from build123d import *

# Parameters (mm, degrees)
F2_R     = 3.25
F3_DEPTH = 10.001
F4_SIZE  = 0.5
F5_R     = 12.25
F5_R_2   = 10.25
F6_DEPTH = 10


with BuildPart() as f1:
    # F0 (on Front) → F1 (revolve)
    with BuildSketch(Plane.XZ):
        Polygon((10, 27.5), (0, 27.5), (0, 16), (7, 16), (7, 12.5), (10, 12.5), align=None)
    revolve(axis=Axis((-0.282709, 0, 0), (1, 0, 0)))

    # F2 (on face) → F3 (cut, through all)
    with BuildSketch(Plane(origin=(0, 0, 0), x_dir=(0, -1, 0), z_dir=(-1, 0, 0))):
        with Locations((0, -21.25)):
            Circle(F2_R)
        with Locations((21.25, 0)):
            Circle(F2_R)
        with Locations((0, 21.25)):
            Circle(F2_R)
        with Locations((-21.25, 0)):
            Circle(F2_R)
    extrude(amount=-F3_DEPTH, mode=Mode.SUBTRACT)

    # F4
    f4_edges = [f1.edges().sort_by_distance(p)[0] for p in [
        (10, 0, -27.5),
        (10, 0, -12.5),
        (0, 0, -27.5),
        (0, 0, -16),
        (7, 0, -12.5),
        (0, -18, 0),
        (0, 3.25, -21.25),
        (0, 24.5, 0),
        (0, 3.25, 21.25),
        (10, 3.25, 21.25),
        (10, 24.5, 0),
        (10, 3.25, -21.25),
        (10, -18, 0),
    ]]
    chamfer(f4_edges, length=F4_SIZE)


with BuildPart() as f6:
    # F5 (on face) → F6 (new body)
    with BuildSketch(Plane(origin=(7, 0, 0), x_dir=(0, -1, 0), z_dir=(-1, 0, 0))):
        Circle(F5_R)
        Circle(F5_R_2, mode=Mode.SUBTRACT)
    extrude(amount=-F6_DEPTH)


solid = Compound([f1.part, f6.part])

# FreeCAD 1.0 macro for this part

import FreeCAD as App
import Part
import Sketcher
Q = App.Units.Quantity


def edges_at(feature, points):
    """Names of the edges that pass closest to the given points."""
    edges = feature.Shape.Edges
    near = lambda p: min(range(len(edges)), key=lambda i: edges[i].distToShape(Part.Vertex(*p))[0])
    return sorted({f"Edge{near(p) + 1}" for p in points})


def add_polygon(sketch, points):
    """Adds a closed chain of lines whose ends are joined by coincident constraints."""
    first, n = sketch.GeometryCount, len(points)
    for a, b in zip(points, points[1:] + points[:1]):
        sketch.addGeometry(Part.LineSegment(App.Vector(*a, 0), App.Vector(*b, 0)), False)
    for i in range(n):
        sketch.addConstraint(Sketcher.Constraint("Coincident", first + i, 2, first + (i + 1) % n, 1))

doc = App.newDocument("Part")
params = doc.addObject("Spreadsheet::Sheet", "Params")
for row, (alias, value) in enumerate([
    ("sketch1_width", "10 mm"),
    ("sketch1_width2", "7 mm"),
    ("sketch1_height", "15 mm"),
    ("sketch1_height2", "11.5 mm"),
    ("revolution_angle", "360 deg"),
    ("sketch2_diameter", "6.5 mm"),
    ("chamfer_size", "0.5 mm"),
    ("sketch3_diameter", "24.5 mm"),
    ("sketch3_diameter2", "20.5 mm"),
    ("pad1_length", "10 mm"),
], start=1):
    params.set(f"A{row}", alias)
    params.set(f"B{row}", "=" + value)
    params.setAlias(f"B{row}", alias)

body = doc.addObject("PartDesign::Body", "Body")

# Sketch on XZ plane
sketch1 = doc.addObject("Sketcher::SketchObject", "Sketch")
body.addObject(sketch1)
sketch1.AttachmentSupport = (doc.XZ_Plane, [""])
sketch1.MapMode = "FlatFace"
add_polygon(sketch1, [(10, 27.5), (0, 27.5), (0, 16), (7, 16), (7, 12.5), (10, 12.5)])  # lines 0-5
sketch1.addConstraint(Sketcher.Constraint("Horizontal", 0))
sketch1.addConstraint(Sketcher.Constraint("Vertical", 1))
sketch1.addConstraint(Sketcher.Constraint("Horizontal", 2))
sketch1.addConstraint(Sketcher.Constraint("Vertical", 3))
sketch1.addConstraint(Sketcher.Constraint("Horizontal", 4))
sketch1.addConstraint(Sketcher.Constraint("Vertical", 5))
sketch1.addConstraint(Sketcher.Constraint("PointOnObject", 0, 2, -2))
sketch1.addConstraint(Sketcher.Constraint("DistanceX", 0, 2, 0, 1, Q("10 mm")))
sketch1.addConstraint(Sketcher.Constraint("DistanceX", 2, 1, 2, 2, Q("7 mm")))
sketch1.addConstraint(Sketcher.Constraint("DistanceY", 5, 1, 5, 2, Q("15 mm")))
sketch1.addConstraint(Sketcher.Constraint("DistanceY", 1, 2, 1, 1, Q("11.5 mm")))
sketch1.addConstraint(Sketcher.Constraint("DistanceY", -1, 1, 1, 2, Q("16 mm")))
sketch1.setExpression("Constraints[13]", "Params.sketch1_width")
sketch1.setExpression("Constraints[14]", "Params.sketch1_width2")
sketch1.setExpression("Constraints[15]", "Params.sketch1_height")
sketch1.setExpression("Constraints[16]", "Params.sketch1_height2")
revolution = doc.addObject("PartDesign::Revolution", "Revolution")
body.addObject(revolution)
revolution.Profile = sketch1
revolution.ReferenceAxis = (sketch1, ["H_Axis"])
revolution.setExpression("Angle", "Params.revolution_angle")

# Sketch on YZ plane
sketch2 = doc.addObject("Sketcher::SketchObject", "Sketch001")
body.addObject(sketch2)
sketch2.AttachmentSupport = (doc.YZ_Plane, [""])
sketch2.MapMode = "FlatFace"
sketch2.addGeometry(Part.Circle(App.Vector(0, -21.25, 0), App.Vector(0, 0, 1), 3.25), False)
sketch2.addGeometry(Part.Circle(App.Vector(-21.25, 0, 0), App.Vector(0, 0, 1), 3.25), False)
sketch2.addGeometry(Part.Circle(App.Vector(0, 21.25, 0), App.Vector(0, 0, 1), 3.25), False)
sketch2.addGeometry(Part.Circle(App.Vector(21.25, 0, 0), App.Vector(0, 0, 1), 3.25), False)
sketch2.addConstraint(Sketcher.Constraint("Equal", 0, 1))
sketch2.addConstraint(Sketcher.Constraint("Equal", 1, 2))
sketch2.addConstraint(Sketcher.Constraint("Equal", 2, 3))
sketch2.addConstraint(Sketcher.Constraint("Symmetric", 0, 3, 2, 3, -1, 1))
sketch2.addConstraint(Sketcher.Constraint("Symmetric", 1, 3, 3, 3, -1, 1))
sketch2.addConstraint(Sketcher.Constraint("PointOnObject", 0, 3, -2))
sketch2.addConstraint(Sketcher.Constraint("PointOnObject", 1, 3, -1))
sketch2.addConstraint(Sketcher.Constraint("Diameter", 0, Q("6.5 mm")))
sketch2.addConstraint(Sketcher.Constraint("DistanceY", 0, 3, 2, 3, Q("42.5 mm")))
sketch2.addConstraint(Sketcher.Constraint("DistanceX", 1, 3, 3, 3, Q("42.5 mm")))
sketch2.setExpression("Constraints[7]", "Params.sketch2_diameter")
pocket1 = doc.addObject("PartDesign::Pocket", "Pocket")
body.addObject(pocket1)
pocket1.Profile = sketch2
pocket1.Type = "ThroughAll"
pocket1.Reversed = True
doc.recompute()

chamfer = doc.addObject("PartDesign::Chamfer", "Chamfer")
body.addObject(chamfer)
chamfer.Base = (pocket1, edges_at(pocket1, [
    (10, 0, -27.5),
    (10, 0, -12.5),
    (0, 0, -27.5),
    (0, 0, -16),
    (7, 0, -12.5),
    (0, -18, 0),
    (0, 3.25, -21.25),
    (0, 24.5, 0),
    (0, 3.25, 21.25),
    (10, 3.25, 21.25),
    (10, 24.5, 0),
    (10, 3.25, -21.25),
    (10, -18, 0),
]))
chamfer.setExpression("Size", "Params.chamfer_size")
body2 = doc.addObject("PartDesign::Body", "Body001")

# Sketch on YZ plane
sketch3 = doc.addObject("Sketcher::SketchObject", "Sketch002")
body2.addObject(sketch3)
sketch3.AttachmentSupport = (doc.getObject("YZ_Plane001"), [""])
sketch3.MapMode = "FlatFace"
sketch3.AttachmentOffset = App.Placement(App.Vector(0, 0, 7), App.Rotation())
sketch3.addGeometry(Part.Circle(App.Vector(0, 0, 0), App.Vector(0, 0, 1), 12.25), False)
sketch3.addGeometry(Part.Circle(App.Vector(0, 0, 0), App.Vector(0, 0, 1), 10.25), False)
sketch3.addConstraint(Sketcher.Constraint("Coincident", 0, 3, -1, 1))
sketch3.addConstraint(Sketcher.Constraint("Coincident", 1, 3, -1, 1))
sketch3.addConstraint(Sketcher.Constraint("Diameter", 0, Q("24.5 mm")))
sketch3.addConstraint(Sketcher.Constraint("Diameter", 1, Q("20.5 mm")))
sketch3.setExpression("Constraints[2]", "Params.sketch3_diameter")
sketch3.setExpression("Constraints[3]", "Params.sketch3_diameter2")
pad1 = doc.addObject("PartDesign::Pad", "Pad")
body2.addObject(pad1)
pad1.Profile = sketch3
pad1.setExpression("Length", "Params.pad1_length")

doc.recompute()
